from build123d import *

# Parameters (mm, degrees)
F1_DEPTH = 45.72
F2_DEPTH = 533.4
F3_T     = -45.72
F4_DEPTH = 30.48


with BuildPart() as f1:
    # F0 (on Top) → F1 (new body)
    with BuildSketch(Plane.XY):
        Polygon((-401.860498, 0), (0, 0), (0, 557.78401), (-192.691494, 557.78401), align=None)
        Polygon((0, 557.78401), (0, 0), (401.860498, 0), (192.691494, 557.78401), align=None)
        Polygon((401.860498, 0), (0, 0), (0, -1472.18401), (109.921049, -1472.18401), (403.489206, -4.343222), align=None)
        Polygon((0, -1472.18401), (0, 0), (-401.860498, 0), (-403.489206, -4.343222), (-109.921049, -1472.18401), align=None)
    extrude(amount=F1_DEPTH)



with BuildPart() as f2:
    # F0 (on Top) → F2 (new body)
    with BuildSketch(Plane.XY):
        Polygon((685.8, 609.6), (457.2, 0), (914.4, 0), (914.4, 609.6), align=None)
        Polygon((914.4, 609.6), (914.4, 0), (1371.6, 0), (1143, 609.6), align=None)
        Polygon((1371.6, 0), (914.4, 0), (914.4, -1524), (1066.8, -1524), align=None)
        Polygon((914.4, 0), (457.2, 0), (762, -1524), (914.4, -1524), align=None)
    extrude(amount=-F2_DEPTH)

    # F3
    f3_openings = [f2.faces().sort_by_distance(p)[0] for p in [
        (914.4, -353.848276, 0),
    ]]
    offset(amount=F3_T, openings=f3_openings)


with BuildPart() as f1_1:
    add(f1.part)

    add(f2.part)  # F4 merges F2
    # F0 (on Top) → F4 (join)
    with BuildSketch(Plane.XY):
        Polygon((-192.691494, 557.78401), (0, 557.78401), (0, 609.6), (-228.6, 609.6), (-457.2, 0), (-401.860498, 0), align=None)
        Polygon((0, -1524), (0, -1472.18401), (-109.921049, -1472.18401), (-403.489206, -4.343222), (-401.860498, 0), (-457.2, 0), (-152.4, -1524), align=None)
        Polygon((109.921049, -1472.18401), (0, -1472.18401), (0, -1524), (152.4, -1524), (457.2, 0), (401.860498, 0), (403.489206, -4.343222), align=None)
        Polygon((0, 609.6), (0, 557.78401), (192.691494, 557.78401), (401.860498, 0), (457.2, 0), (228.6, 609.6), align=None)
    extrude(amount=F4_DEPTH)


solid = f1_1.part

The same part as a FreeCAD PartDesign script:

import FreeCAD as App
import Part
import Sketcher
from FreeCAD import Vector
Q = App.Units.Quantity


def faces_at(feature, points):
    """Names of the faces that lie closest to the given points."""
    faces = feature.Shape.Faces
    near = lambda p: min(range(len(faces)), key=lambda i: faces[i].distToShape(Part.Vertex(*p))[0])
    return sorted({f"Face{near(p) + 1}" for p in points})


def add_polygon(sketch, points):
    """Adds a closed chain of lines whose ends are joined by coincident constraints."""
    first, n = sketch.GeometryCount, len(points)
    for a, b in zip(points, points[1:] + points[:1]):
        sketch.addGeometry(Part.LineSegment(App.Vector(*a, 0), App.Vector(*b, 0)), False)
    for i in range(n):
        sketch.addConstraint(Sketcher.Constraint("Coincident", first + i, 2, first + (i + 1) % n, 1))

doc = App.newDocument("Part")
body = doc.addObject("PartDesign::Body", "Body")

# Sketch on XY plane
sketch1 = body.newObject("Sketcher::SketchObject", "Sketch")
sketch1.AttachmentSupport = (doc.getObject("XY_Plane"), [""])
sketch1.MapMode = "FlatFace"
add_polygon(sketch1, [(109.921049, -1472.18401), (403.489206, -4.343222), (401.860498, 0), (192.691494, 557.78401), (-192.691494, 557.78401), (-401.860498, 0), (-403.489206, -4.343222), (-109.921049, -1472.18401)])  # lines 0-7
sketch1.addConstraint([
    Sketcher.Constraint("Horizontal", 3),
    Sketcher.Constraint("Horizontal", 7),
    Sketcher.Constraint("Symmetric", 1, 2, 4, 2, -1, 1),
    Sketcher.Constraint("Symmetric", 0, 2, 5, 2, -2),
    Sketcher.Constraint("PointOnObject", 1, 2, -1),
    Sketcher.Constraint("Parallel", 1, 2),
    Sketcher.Constraint("Parallel", 4, 5),
    Sketcher.Constraint("Equal", 0, 6),
    Sketcher.Constraint("DistanceX", 2, 2, 1, 2, Q("8.2350002 in")),
    Sketcher.Constraint("DistanceX", 7, 1, 7, 2, 219.842098),
    Sketcher.Constraint("DistanceX", 3, 2, 3, 1, 385.382988),
    Sketcher.Constraint("DistanceX", 3, 2, 0, 2, 596.1807),
    Sketcher.Constraint("DistanceY", -1, 1, 2, 2, 557.78401),
    Sketcher.Constraint("DistanceY", 6, 2, -1, 1, 1472.18401),
])
pad1 = body.newObject("PartDesign::Pad", "Pad")
pad1.Profile = sketch1
pad1.Length = Q("1.8 in")
body2 = doc.addObject("PartDesign::Body", "Body001")

# Sketch on XY plane
sketch2 = body2.newObject("Sketcher::SketchObject", "Sketch001")
sketch2.AttachmentSupport = (doc.getObject("XY_Plane001"), [""])
sketch2.MapMode = "FlatFace"
add_polygon(sketch2, [(685.8, 609.6), (457.2, 0), (762, -1524), (1066.8, -1524), (1371.6, 0), (1143, 609.6)])  # lines 0-5
sketch2.addConstraint([
    Sketcher.Constraint("Horizontal", 2),
    Sketcher.Constraint("Horizontal", 5),
    Sketcher.Constraint("PointOnObject", 0, 2, -1),
    Sketcher.Constraint("PointOnObject", 3, 2, -1),
    Sketcher.Constraint("Equal", 1, 3),
    Sketcher.Constraint("Equal", 0, 4),
    Sketcher.Constraint("DistanceX", 2, 1, 2, 2, Q("12 in")),
    Sketcher.Constraint("DistanceX", 5, 2, 5, 1, Q("18 in")),
    Sketcher.Constraint("DistanceX", -1, 1, 0, 2, Q("18 in")),
    Sketcher.Constraint("DistanceX", -1, 1, 1, 2, Q("30 in")),
    Sketcher.Constraint("DistanceY", 1, 2, -1, 1, Q("60 in")),
    Sketcher.Constraint("DistanceY", -1, 1, 4, 2, Q("24 in")),
])
pad2 = body2.newObject("PartDesign::Pad", "Pad001")
pad2.Profile = sketch2
pad2.Length = Q("21 in")
pad2.Reversed = True
doc.recompute()

thickness = body2.newObject("PartDesign::Thickness", "Thickness")
thickness.Base = (pad2, faces_at(pad2, [(914.4, -457.2, 0)]))
thickness.Value = Q("1.8 in")
thickness.Reversed = True
thickness.Join = "Arc"
body.AllowCompound = True
doc.recompute()

boolean = body.newObject("PartDesign::Boolean", "Boolean")
boolean.Type = "Fuse"
boolean.addObjects([body2])

# Sketch on XY plane
sketch3 = body.newObject("Sketcher::SketchObject", "Sketch002")
sketch3.AttachmentSupport = (doc.getObject("XY_Plane"), [""])
sketch3.MapMode = "FlatFace"
add_polygon(sketch3, [(-228.6, 609.6), (-457.2, 0), (-152.4, -1524), (152.4, -1524), (457.2, 0), (228.6, 609.6)])  # lines 0-5
add_polygon(sketch3, [(-192.691494, 557.78401), (192.691494, 557.78401), (401.860498, 0), (403.489206, -4.343222), (109.921049, -1472.18401), (-109.921049, -1472.18401), (-403.489206, -4.343222), (-401.860498, 0)])  # lines 6-13
sketch3.addConstraint([
    Sketcher.Constraint("Horizontal", 2),
    Sketcher.Constraint("Horizontal", 5),
    Sketcher.Constraint("Horizontal", 6),
    Sketcher.Constraint("Horizontal", 10),
    Sketcher.Constraint("Symmetric", 0, 2, 3, 2, -1, 1),
    Sketcher.Constraint("Symmetric", 7, 2, 12, 2, -1, 1),
    Sketcher.Constraint("Symmetric", 8, 2, 11, 2, -2),
    Sketcher.Constraint("PointOnObject", 0, 2, -1),
    Sketcher.Constraint("PointOnObject", 7, 2, -1),
    Sketcher.Constraint("Parallel", 4, 7),
    Sketcher.Constraint("Parallel", 7, 8),
    Sketcher.Constraint("Parallel", 3, 9),
    Sketcher.Constraint("Parallel", 1, 11),
    Sketcher.Constraint("Parallel", 0, 12),
    Sketcher.Constraint("Parallel", 12, 13),
    Sketcher.Constraint("Equal", 1, 3),
    Sketcher.Constraint("DistanceX", 2, 1, 2, 2, Q("12 in")),
    Sketcher.Constraint("DistanceX", 5, 2, 5, 1, Q("18 in")),
    Sketcher.Constraint("DistanceX", 0, 2, -1, 1, Q("18 in")),
    Sketcher.Constraint("DistanceY", 1, 2, -1, 1, Q("60 in")),
    Sketcher.Constraint("DistanceY", -1, 1, 4, 2, Q("24 in")),
    Sketcher.Constraint("DistanceX", 6, 2, 7, 2, Q("8.2350002 in")),
    Sketcher.Constraint("DistanceX", 10, 2, 10, 1, 219.842098),
    Sketcher.Constraint("DistanceX", 6, 1, 6, 2, 385.382988),
    Sketcher.Constraint("DistanceX", 11, 2, 6, 2, 596.1807),
])
pad3 = body.newObject("PartDesign::Pad", "Pad002")
pad3.Profile = sketch3
pad3.Length = Q("1.2 in")

doc.recompute()
